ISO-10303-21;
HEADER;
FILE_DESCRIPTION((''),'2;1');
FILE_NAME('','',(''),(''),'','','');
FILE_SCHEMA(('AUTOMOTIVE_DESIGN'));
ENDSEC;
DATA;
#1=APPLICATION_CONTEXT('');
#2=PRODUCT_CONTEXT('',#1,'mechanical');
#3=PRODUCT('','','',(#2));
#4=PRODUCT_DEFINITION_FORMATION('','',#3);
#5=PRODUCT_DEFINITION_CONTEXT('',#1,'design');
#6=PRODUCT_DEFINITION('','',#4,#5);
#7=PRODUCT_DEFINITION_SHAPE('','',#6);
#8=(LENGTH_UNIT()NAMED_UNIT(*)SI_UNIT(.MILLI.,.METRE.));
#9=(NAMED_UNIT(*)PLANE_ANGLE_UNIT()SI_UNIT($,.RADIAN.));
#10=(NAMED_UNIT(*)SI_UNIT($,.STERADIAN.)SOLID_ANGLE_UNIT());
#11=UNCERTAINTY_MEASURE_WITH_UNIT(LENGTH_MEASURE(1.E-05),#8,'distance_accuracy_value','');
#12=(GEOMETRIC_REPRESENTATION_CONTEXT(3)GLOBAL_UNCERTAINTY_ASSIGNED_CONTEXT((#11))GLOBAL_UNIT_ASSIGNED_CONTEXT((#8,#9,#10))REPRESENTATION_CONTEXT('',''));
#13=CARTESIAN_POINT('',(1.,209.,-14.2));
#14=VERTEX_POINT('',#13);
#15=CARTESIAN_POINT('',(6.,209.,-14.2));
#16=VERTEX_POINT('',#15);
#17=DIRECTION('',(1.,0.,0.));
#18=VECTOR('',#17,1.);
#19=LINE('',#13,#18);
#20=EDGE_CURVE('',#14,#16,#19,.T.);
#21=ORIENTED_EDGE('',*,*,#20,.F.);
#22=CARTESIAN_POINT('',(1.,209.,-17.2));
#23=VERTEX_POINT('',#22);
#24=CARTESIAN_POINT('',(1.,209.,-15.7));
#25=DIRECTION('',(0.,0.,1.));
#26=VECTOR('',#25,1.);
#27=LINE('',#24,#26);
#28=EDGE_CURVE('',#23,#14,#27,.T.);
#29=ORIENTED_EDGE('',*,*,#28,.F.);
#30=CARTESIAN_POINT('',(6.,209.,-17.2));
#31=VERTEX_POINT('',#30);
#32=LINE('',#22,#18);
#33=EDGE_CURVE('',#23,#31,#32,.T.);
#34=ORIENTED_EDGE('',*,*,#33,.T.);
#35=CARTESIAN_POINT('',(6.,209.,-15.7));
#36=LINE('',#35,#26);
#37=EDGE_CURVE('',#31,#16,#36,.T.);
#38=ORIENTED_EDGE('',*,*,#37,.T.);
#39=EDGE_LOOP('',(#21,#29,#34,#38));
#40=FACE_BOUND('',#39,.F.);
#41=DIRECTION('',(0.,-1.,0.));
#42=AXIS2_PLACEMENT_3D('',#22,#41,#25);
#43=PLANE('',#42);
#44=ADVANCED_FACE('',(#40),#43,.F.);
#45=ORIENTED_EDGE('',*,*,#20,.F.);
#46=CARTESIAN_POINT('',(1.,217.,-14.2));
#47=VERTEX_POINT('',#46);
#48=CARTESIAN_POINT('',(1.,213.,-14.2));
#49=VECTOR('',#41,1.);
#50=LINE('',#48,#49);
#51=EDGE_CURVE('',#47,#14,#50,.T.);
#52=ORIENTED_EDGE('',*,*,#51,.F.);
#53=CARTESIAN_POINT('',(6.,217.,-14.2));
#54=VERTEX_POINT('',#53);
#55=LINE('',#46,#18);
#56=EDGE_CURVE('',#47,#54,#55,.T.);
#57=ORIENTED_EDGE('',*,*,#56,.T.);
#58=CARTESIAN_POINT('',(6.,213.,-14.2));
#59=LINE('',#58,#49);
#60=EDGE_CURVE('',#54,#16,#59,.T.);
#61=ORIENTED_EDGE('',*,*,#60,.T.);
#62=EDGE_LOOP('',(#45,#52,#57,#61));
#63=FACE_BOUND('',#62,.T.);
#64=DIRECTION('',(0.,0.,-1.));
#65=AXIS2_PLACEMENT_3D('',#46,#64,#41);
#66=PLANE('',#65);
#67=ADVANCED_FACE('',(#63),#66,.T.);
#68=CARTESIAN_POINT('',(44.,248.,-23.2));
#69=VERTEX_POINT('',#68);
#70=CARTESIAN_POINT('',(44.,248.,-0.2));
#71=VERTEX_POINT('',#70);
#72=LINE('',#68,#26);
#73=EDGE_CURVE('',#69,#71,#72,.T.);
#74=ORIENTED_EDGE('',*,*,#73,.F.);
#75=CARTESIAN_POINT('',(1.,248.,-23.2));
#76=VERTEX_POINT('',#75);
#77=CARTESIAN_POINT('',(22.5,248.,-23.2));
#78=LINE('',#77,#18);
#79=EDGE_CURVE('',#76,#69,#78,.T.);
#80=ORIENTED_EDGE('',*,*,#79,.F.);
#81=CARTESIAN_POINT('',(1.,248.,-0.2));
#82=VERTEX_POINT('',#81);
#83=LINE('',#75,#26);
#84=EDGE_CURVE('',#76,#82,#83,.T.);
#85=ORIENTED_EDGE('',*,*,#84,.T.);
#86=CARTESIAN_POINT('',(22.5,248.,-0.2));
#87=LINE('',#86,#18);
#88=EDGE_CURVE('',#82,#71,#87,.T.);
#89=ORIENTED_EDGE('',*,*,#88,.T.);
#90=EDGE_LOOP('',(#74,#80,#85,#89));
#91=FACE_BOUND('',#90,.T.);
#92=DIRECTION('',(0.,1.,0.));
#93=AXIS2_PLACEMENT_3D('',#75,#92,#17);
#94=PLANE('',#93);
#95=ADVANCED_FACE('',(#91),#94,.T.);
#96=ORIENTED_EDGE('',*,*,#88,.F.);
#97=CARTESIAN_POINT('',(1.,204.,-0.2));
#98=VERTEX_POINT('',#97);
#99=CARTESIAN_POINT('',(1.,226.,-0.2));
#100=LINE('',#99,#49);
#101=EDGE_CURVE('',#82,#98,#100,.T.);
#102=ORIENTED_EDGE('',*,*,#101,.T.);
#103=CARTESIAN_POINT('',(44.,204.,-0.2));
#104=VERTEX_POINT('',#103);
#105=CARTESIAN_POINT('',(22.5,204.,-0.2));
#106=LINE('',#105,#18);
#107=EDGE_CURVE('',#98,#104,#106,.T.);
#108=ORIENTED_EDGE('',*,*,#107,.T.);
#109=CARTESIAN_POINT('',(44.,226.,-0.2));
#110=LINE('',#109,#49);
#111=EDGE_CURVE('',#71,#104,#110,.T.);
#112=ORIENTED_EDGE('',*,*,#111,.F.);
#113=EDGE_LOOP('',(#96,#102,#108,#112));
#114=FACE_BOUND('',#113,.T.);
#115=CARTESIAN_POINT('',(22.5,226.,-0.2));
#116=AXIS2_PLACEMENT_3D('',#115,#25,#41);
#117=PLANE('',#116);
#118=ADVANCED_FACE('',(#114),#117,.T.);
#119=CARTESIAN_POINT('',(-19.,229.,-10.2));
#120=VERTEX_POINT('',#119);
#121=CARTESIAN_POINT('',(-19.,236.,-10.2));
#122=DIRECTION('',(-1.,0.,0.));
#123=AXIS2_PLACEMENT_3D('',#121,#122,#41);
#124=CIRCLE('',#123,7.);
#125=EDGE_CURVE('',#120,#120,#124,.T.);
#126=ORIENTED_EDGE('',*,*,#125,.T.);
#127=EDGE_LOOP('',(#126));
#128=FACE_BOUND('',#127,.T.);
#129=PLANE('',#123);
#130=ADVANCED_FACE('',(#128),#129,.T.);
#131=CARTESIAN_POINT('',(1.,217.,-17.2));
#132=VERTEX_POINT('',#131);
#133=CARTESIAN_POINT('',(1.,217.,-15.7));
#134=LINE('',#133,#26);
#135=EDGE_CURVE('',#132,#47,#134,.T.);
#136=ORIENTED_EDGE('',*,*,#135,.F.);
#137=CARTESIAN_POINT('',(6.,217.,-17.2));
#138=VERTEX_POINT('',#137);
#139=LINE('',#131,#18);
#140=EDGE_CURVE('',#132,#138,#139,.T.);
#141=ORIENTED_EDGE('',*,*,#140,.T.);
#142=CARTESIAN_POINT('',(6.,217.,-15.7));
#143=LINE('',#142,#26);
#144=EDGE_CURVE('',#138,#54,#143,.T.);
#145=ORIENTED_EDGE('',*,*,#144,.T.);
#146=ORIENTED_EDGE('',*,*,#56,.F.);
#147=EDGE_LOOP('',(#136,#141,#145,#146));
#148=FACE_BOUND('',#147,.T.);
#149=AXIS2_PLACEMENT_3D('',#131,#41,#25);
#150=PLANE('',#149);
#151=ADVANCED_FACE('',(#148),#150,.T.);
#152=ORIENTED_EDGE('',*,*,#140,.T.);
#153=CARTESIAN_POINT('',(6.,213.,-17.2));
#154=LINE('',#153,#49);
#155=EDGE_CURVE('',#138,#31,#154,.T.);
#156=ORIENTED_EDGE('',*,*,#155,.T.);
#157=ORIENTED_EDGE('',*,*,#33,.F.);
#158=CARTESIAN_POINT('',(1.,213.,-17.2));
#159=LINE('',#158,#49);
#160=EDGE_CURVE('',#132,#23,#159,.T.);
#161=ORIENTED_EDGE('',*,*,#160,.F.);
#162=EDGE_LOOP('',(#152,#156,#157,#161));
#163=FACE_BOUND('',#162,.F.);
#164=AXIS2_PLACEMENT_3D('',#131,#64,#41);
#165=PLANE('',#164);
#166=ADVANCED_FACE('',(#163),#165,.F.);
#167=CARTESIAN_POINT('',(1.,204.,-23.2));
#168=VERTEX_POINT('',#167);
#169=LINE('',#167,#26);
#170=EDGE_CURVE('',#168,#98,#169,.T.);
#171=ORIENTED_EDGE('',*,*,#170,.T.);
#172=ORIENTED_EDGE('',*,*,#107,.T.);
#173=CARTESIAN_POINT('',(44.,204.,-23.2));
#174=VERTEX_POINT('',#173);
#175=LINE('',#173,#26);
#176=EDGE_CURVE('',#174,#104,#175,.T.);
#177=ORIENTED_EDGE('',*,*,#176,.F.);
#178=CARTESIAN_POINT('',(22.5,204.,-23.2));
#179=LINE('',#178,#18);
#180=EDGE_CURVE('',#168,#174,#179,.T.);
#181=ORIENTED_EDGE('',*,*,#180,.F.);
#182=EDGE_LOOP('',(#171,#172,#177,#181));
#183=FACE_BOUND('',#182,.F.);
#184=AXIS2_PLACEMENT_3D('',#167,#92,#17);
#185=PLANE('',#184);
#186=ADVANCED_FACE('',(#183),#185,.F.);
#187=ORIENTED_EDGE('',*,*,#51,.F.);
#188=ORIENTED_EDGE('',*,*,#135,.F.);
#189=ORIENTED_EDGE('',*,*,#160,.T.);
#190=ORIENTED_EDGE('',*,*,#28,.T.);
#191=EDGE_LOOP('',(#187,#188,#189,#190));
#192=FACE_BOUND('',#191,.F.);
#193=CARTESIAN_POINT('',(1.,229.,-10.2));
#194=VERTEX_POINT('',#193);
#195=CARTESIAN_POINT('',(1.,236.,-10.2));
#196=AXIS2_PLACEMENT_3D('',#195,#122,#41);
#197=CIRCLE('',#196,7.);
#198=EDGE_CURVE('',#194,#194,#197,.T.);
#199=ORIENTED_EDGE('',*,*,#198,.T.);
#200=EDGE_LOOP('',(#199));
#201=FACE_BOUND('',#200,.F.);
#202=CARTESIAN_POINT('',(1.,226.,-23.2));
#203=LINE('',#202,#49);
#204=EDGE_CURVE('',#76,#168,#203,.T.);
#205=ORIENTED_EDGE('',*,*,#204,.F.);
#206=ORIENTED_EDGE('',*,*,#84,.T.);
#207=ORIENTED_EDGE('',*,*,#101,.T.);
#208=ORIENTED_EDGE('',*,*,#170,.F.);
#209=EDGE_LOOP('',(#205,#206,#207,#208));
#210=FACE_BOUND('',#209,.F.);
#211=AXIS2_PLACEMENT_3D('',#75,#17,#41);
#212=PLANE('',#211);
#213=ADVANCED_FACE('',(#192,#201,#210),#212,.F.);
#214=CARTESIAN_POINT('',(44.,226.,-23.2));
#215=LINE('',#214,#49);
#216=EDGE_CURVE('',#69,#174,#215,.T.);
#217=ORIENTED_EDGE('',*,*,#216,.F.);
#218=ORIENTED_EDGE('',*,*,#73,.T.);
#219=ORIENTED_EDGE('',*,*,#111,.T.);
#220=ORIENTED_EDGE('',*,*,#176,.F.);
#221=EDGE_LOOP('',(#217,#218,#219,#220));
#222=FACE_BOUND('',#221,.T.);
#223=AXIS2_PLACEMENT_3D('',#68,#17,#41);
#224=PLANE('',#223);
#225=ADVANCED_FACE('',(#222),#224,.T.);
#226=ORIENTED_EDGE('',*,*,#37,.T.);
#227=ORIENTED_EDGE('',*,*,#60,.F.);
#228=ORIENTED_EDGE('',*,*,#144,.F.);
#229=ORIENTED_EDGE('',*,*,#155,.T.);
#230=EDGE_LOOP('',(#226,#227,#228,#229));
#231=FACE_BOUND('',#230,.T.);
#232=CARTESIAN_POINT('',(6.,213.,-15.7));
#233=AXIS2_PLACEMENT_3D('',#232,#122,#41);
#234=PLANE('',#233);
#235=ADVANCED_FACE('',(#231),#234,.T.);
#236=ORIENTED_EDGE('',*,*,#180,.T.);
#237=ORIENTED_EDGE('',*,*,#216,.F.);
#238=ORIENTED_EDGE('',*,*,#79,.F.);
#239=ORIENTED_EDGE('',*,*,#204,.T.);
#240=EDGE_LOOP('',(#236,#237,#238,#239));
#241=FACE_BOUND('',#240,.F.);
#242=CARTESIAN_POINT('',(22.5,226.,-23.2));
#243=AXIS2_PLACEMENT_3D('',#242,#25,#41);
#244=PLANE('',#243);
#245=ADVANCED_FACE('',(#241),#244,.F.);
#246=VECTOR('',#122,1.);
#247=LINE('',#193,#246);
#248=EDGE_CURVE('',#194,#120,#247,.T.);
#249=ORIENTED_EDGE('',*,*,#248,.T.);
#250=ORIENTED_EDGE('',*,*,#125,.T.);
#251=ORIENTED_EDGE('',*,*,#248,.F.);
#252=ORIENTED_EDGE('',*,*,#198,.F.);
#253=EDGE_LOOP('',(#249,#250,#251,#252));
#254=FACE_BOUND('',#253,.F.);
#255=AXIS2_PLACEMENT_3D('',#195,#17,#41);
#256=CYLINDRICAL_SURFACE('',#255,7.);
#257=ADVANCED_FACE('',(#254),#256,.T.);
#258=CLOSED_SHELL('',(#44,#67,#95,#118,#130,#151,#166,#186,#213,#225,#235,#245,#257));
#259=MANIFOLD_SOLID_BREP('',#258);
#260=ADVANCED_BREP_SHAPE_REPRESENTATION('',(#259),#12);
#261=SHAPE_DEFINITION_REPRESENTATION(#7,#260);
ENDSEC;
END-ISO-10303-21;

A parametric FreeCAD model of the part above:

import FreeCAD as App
import Part
import Sketcher

V = App.Vector
Q = App.Units.Quantity


def add_polygon(sketch, points):
    """Adds a closed chain of lines whose ends are joined by coincident constraints."""
    first, n = sketch.GeometryCount, len(points)
    for a, b in zip(points, points[1:] + points[:1]):
        sketch.addGeometry(Part.LineSegment(App.Vector(*a, 0), App.Vector(*b, 0)), False)
    for i in range(n):
        sketch.addConstraint(Sketcher.Constraint("Coincident", first + i, 2, first + (i + 1) % n, 1))

doc = App.newDocument("Part")
body = doc.addObject("PartDesign::Body", "Body")

# Sketch on XY plane
sketch1 = doc.addObject("Sketcher::SketchObject", "Sketch")
body.addObject(sketch1)
sketch1.AttachmentSupport = (doc.XY_Plane, [""])
sketch1.MapMode = "FlatFace"
add_polygon(sketch1, [(0, 43), (0, 0), (44, 0), (44, 43)])  # lines 0-3
sketch1.addConstraint([
    Sketcher.Constraint("Vertical", 0),
    Sketcher.Constraint("Horizontal", 1),
    Sketcher.Constraint("Vertical", 2),
    Sketcher.Constraint("Horizontal", 3),
    Sketcher.Constraint("Coincident", 0, 2, -1, 1),
    Sketcher.Constraint("DistanceX", 1, 1, 1, 2, Q("44 mm")),
    Sketcher.Constraint("DistanceY", 0, 2, 0, 1, Q("43 mm")),
])
pad1 = doc.addObject("PartDesign::Pad", "Pad")
body.addObject(pad1)
pad1.Profile = sketch1
pad1.Length = 23

# Sketch on XZ plane
sketch2 = doc.addObject("Sketcher::SketchObject", "Sketch001")
body.addObject(sketch2)
sketch2.AttachmentSupport = (doc.XZ_Plane, [""])
sketch2.MapMode = "FlatFace"
sketch2.addGeometry(Part.Circle(V(12, 13, 0), V(0, 0, 1), 7), False)
sketch2.addConstraint([
    Sketcher.Constraint("Diameter", 0, Q("14 mm")),
    Sketcher.Constraint("DistanceX", -1, 1, 0, 3, Q("12 mm")),
    Sketcher.Constraint("DistanceY", -1, 1, 0, 3, Q("13 mm")),
])
pad2 = doc.addObject("PartDesign::Pad", "Pad001")
body.addObject(pad2)
pad2.Profile = sketch2
pad2.Length = 20

# Sketch on XZ plane
sketch3 = doc.addObject("Sketcher::SketchObject", "Sketch002")
body.addObject(sketch3)
sketch3.AttachmentSupport = (doc.XZ_Plane, [""])
sketch3.MapMode = "FlatFace"
add_polygon(sketch3, [(31, 9), (31, 6), (39, 6), (39, 9)])  # lines 0-3
sketch3.addConstraint([
    Sketcher.Constraint("Vertical", 0),
    Sketcher.Constraint("Horizontal", 1),
    Sketcher.Constraint("Vertical", 2),
    Sketcher.Constraint("Horizontal", 3),
    Sketcher.Constraint("DistanceX", 1, 1, 1, 2, Q("8 mm")),
    Sketcher.Constraint("DistanceY", 0, 2, 0, 1, Q("3 mm")),
    Sketcher.Constraint("DistanceX", -1, 1, 0, 2, Q("31 mm")),
    Sketcher.Constraint("DistanceY", -1, 1, 0, 2, Q("6 mm")),
])
pocket1 = doc.addObject("PartDesign::Pocket", "Pocket")
body.addObject(pocket1)
pocket1.Profile = sketch3
pocket1.Length = 5
body2 = doc.addObject("PartDesign::Body", "Body001")
doc.recompute()

body.Placement = App.Placement(V(1, 248, -23.2), App.Rotation(V(0, 0, 1), 270))
boolean = doc.addObject("PartDesign::Boolean", "Boolean")
body2.addObject(boolean)
boolean.Type = "Fuse"
boolean.addObjects([body])

doc.recompute()
